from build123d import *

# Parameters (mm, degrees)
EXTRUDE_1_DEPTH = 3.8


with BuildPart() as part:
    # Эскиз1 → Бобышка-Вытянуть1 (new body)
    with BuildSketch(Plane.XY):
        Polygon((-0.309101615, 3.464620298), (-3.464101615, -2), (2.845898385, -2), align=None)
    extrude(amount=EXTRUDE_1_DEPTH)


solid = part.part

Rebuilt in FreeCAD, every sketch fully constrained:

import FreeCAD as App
import Part
import Sketcher
from FreeCAD import Vector
Q = App.Units.Quantity

doc = App.newDocument("Part")
body = doc.addObject("PartDesign::Body", "Body")

sketch1 = body.newObject("Sketcher::SketchObject", "Sketch")
sketch1.AttachmentSupport = (doc.getObject("XY_Plane"), [""])
sketch1.MapMode = "FlatFace"
sketch1.addGeometry([
    Part.LineSegment(Vector(-0.309102, 3.46462, 0), Vector(-3.464102, -2, 0)),
    Part.LineSegment(Vector(-3.464102, -2, 0), Vector(2.845898, -2, 0)),
    Part.LineSegment(Vector(2.845898, -2, 0), Vector(-0.309102, 3.46462, 0)),
], False)
sketch1.addConstraint([
    Sketcher.Constraint("Coincident", 0, 2, 1, 1),
    Sketcher.Constraint("Coincident", 1, 2, 2, 1),
    Sketcher.Constraint("Coincident", 2, 2, 0, 1),
    Sketcher.Constraint("Horizontal", 1),
    Sketcher.Constraint("Equal", 0, 2),
    Sketcher.Constraint("Angle", 0, Q("-120 deg")),
    Sketcher.Constraint("DistanceY", 0, 2, -1, 1, Q("2 mm")),
    Sketcher.Constraint("DistanceX", 1, 1, 1, 2, Q("6.31 mm")),
    Sketcher.Constraint("DistanceX", 0, 2, -1, 1, Q("3.464102 mm")),
])
pad1 = body.newObject("PartDesign::Pad", "Pad")
pad1.Profile = sketch1
pad1.Length = 3.8

doc.recompute()
